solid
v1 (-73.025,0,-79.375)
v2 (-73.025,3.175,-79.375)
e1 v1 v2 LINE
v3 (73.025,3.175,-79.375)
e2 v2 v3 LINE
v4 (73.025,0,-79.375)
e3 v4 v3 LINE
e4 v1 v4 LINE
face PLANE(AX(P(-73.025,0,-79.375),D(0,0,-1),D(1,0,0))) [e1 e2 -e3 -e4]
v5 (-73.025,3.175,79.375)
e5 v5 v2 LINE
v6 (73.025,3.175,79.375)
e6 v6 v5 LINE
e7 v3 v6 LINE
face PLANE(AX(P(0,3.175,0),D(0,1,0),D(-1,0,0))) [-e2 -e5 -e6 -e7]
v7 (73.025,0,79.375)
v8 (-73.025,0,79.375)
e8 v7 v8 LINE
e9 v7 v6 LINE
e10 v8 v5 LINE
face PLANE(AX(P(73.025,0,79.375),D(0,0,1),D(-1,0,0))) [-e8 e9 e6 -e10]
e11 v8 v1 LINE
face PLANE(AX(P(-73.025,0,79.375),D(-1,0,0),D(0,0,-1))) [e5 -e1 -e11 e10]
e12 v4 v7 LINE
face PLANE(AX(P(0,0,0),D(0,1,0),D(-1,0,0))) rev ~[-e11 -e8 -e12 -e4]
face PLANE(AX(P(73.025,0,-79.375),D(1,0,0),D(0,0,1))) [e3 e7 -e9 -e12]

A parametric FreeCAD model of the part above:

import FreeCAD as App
import Part
import Sketcher

V = App.Vector
Q = App.Units.Quantity


def add_polygon(sketch, points):
    """Adds a closed chain of lines whose ends are joined by coincident constraints."""
    first, n = sketch.GeometryCount, len(points)
    for a, b in zip(points, points[1:] + points[:1]):
        sketch.addGeometry(Part.LineSegment(App.Vector(*a, 0), App.Vector(*b, 0)), False)
    for i in range(n):
        sketch.addConstraint(Sketcher.Constraint("Coincident", first + i, 2, first + (i + 1) % n, 1))

doc = App.newDocument("Part")
body = doc.addObject("PartDesign::Body", "Body")

# Sketch on XZ plane
sketch1 = body.newObject("Sketcher::SketchObject", "Sketch")
sketch1.AttachmentSupport = (doc.getObject("XZ_Plane"), [""])
sketch1.MapMode = "FlatFace"
add_polygon(sketch1, [(-73, 79), (73, 79), (73, -79), (-73, -79)])  # lines 0-3
sketch1.addConstraint(Sketcher.Constraint("Horizontal", 0))
sketch1.addConstraint(Sketcher.Constraint("Vertical", 1))
sketch1.addConstraint(Sketcher.Constraint("Horizontal", 2))
sketch1.addConstraint(Sketcher.Constraint("Vertical", 3))
sketch1.addConstraint(Sketcher.Constraint("Symmetric", 0, 2, 2, 2, -1, 1))
sketch1.addConstraint(Sketcher.Constraint("DistanceX", 0, 1, 0, 2, Q("5.75 in")))
sketch1.addConstraint(Sketcher.Constraint("DistanceY", 1, 2, 1, 1, Q("6.25 in")))
pad1 = body.newObject("PartDesign::Pad", "Pad")
pad1.Profile = sketch1
pad1.Length = Q("0.125 in")
pad1.Reversed = True

doc.recompute()
